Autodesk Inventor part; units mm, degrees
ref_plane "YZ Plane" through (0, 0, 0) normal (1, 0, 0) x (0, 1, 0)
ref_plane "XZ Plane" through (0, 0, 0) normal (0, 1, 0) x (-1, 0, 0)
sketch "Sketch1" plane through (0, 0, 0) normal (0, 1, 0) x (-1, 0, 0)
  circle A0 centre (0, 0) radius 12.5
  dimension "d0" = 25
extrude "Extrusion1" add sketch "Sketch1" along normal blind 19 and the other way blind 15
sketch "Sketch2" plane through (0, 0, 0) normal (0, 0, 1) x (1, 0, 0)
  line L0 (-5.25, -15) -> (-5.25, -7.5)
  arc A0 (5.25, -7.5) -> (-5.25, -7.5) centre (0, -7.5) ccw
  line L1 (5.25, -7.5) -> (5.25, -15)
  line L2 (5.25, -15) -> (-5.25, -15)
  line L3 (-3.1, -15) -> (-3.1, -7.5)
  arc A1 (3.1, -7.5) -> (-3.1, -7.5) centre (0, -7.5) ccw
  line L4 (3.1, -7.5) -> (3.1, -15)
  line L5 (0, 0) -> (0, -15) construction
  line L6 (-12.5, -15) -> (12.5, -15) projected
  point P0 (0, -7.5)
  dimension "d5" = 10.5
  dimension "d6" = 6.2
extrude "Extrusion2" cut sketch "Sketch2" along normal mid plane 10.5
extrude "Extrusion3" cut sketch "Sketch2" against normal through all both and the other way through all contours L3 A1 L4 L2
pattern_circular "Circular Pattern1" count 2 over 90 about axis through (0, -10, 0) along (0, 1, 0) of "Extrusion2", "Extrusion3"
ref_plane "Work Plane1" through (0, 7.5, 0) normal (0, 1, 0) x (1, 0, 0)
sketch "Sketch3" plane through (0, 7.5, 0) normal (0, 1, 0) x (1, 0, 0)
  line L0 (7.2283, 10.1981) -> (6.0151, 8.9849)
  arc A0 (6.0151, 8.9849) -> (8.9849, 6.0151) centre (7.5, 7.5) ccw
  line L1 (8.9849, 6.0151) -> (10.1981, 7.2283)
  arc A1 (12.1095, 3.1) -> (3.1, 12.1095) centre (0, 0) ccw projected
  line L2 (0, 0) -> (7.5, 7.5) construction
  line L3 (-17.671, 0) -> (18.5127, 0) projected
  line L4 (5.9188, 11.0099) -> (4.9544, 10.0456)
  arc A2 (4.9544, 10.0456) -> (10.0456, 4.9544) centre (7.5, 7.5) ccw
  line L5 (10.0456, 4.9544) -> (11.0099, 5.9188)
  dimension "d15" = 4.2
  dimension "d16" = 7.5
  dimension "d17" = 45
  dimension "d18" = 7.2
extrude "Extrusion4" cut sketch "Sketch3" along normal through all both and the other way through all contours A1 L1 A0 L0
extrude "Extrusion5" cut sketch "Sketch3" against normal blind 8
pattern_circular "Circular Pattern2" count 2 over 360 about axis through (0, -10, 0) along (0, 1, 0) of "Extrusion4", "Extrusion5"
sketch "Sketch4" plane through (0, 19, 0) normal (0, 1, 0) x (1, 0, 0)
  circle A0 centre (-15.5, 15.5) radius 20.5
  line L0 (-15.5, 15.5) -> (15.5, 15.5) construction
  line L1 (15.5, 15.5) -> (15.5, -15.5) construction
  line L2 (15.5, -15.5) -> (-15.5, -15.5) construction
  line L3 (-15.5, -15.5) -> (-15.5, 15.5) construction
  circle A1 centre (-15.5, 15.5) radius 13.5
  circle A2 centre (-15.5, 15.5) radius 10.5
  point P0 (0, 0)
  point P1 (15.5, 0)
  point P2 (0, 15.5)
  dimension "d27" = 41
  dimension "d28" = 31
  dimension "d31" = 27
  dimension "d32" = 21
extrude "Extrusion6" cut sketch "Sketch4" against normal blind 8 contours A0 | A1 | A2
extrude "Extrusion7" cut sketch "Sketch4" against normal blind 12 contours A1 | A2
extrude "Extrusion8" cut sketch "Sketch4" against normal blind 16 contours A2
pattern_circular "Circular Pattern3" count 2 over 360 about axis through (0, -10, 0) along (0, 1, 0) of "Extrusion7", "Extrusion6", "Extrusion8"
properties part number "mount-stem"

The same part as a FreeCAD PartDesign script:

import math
import FreeCAD as App
import Part
import Sketcher
Q = App.Units.Quantity

doc = App.newDocument("Part")
body = doc.addObject("PartDesign::Body", "Body")

# Sketch on XZ plane
sketch1 = doc.addObject("Sketcher::SketchObject", "Sketch")
body.addObject(sketch1)
sketch1.AttachmentSupport = (doc.XZ_Plane, [""])
sketch1.MapMode = "FlatFace"
sketch1.addGeometry(Part.Circle(App.Vector(0, 0, 0), App.Vector(0, 0, 1), 12), False)
sketch1.addConstraint(Sketcher.Constraint("Coincident", 0, 3, -1, 1))
sketch1.addConstraint(Sketcher.Constraint("Diameter", 0, 25.0))
pad1 = doc.addObject("PartDesign::Pad", "Pad")
body.addObject(pad1)
pad1.Profile = sketch1
pad1.Type = "TwoLengths"
pad1.Length = 19
pad1.Length2 = 15
pad1.Reversed = True

# Sketch on XY plane
sketch2 = doc.addObject("Sketcher::SketchObject", "Sketch001")
body.addObject(sketch2)
sketch2.AttachmentSupport = (doc.XY_Plane, [""])
sketch2.MapMode = "FlatFace"
sketch2.addGeometry(Part.LineSegment(App.Vector(-5, -8, 0), App.Vector(-5, -15, 0)), False)
sketch2.addGeometry(Part.LineSegment(App.Vector(-5, -15, 0), App.Vector(5, -15, 0)), False)
sketch2.addGeometry(Part.LineSegment(App.Vector(5, -15, 0), App.Vector(5, -8, 0)), False)
sketch2.addGeometry(Part.ArcOfCircle(Part.Circle(App.Vector(0, -8, 0), App.Vector(0, 0, 1), 5), math.radians(0), math.radians(180)), False)
sketch2.addConstraint(Sketcher.Constraint("Coincident", 0, 2, 1, 1))
sketch2.addConstraint(Sketcher.Constraint("Coincident", 1, 2, 2, 1))
sketch2.addConstraint(Sketcher.Constraint("Tangent", 2, 2, 3, 1))
sketch2.addConstraint(Sketcher.Constraint("Tangent", 3, 2, 0, 1))
sketch2.addConstraint(Sketcher.Constraint("Vertical", 0))
sketch2.addConstraint(Sketcher.Constraint("Horizontal", 1))
sketch2.addConstraint(Sketcher.Constraint("Vertical", 2))
sketch2.addConstraint(Sketcher.Constraint("PointOnObject", 3, 3, -2))
sketch2.addConstraint(Sketcher.Constraint("Radius", 3, 5.25))
sketch2.addConstraint(Sketcher.Constraint("DistanceY", 0, 2, 0, 1, 7.5))
sketch2.addConstraint(Sketcher.Constraint("DistanceY", 0, 2, -1, 1, 15.0))
pocket1 = doc.addObject("PartDesign::Pocket", "Pocket")
body.addObject(pocket1)
pocket1.Profile = sketch2
pocket1.Length = 10.5
pocket1.Midplane = True

# Sketch on XY plane
sketch3 = doc.addObject("Sketcher::SketchObject", "Sketch002")
body.addObject(sketch3)
sketch3.AttachmentSupport = (doc.XY_Plane, [""])
sketch3.MapMode = "FlatFace"
sketch3.addGeometry(Part.LineSegment(App.Vector(-3.1, -7.5, 0), App.Vector(-3.1, -15, 0)), False)
sketch3.addGeometry(Part.LineSegment(App.Vector(-3.1, -15, 0), App.Vector(3.1, -15, 0)), False)
sketch3.addGeometry(Part.LineSegment(App.Vector(3.1, -15, 0), App.Vector(3.1, -7.5, 0)), False)
sketch3.addGeometry(Part.ArcOfCircle(Part.Circle(App.Vector(0, -7.5, 0), App.Vector(0, 0, 1), 3.1), math.radians(0), math.radians(180)), False)
sketch3.addConstraint(Sketcher.Constraint("Coincident", 0, 2, 1, 1))
sketch3.addConstraint(Sketcher.Constraint("Coincident", 1, 2, 2, 1))
sketch3.addConstraint(Sketcher.Constraint("Tangent", 2, 2, 3, 1))
sketch3.addConstraint(Sketcher.Constraint("Tangent", 3, 2, 0, 1))
sketch3.addConstraint(Sketcher.Constraint("Vertical", 0))
sketch3.addConstraint(Sketcher.Constraint("Horizontal", 1))
sketch3.addConstraint(Sketcher.Constraint("Vertical", 2))
sketch3.addConstraint(Sketcher.Constraint("PointOnObject", 3, 3, -2))
sketch3.addConstraint(Sketcher.Constraint("Radius", 3, 3.1))
sketch3.addConstraint(Sketcher.Constraint("DistanceY", 0, 2, 0, 1, 7.5))
sketch3.addConstraint(Sketcher.Constraint("DistanceY", 0, 2, -1, 1, 15.0))
pocket2 = doc.addObject("PartDesign::Pocket", "Pocket001")
body.addObject(pocket2)
pocket2.Profile = sketch3
pocket2.Type = "ThroughAll"
pocket2.Midplane = True
doc.recompute()

polarpattern = doc.addObject("PartDesign::PolarPattern", "PolarPattern")
body.addObject(polarpattern)
polarpattern.Originals = [pocket1, pocket2]
polarpattern.Axis = (doc.Y_Axis, [""])
polarpattern.Angle = 90
polarpattern.Occurrences = 2
body.Tip = polarpattern

# Sketch on XZ plane
sketch4 = doc.addObject("Sketcher::SketchObject", "Sketch003")
body.addObject(sketch4)
sketch4.AttachmentSupport = (doc.XZ_Plane, [""])
sketch4.MapMode = "FlatFace"
sketch4.AttachmentOffset = App.Placement(App.Vector(0, 0, -7.5), App.Rotation())
sketch4.addGeometry(Part.ArcOfCircle(Part.Circle(App.Vector(0, 0, 0), App.Vector(0, 0, 1), 12.5), math.radians(-54.67), math.radians(-35.33)), False)
sketch4.addGeometry(Part.LineSegment(App.Vector(7.2, -10.2, 0), App.Vector(6, -9, 0)), False)
sketch4.addGeometry(Part.ArcOfCircle(Part.Circle(App.Vector(7.5, -7.5, 0), App.Vector(0, 0, 1), 2.1), math.radians(45), math.radians(225)), False)
sketch4.addGeometry(Part.LineSegment(App.Vector(9, -6, 0), App.Vector(10.2, -7.2, 0)), False)
sketch4.addConstraint(Sketcher.Constraint("Coincident", 0, 1, 1, 1))
sketch4.addConstraint(Sketcher.Constraint("Tangent", 1, 2, 2, 2))
sketch4.addConstraint(Sketcher.Constraint("Tangent", 2, 1, 3, 1))
sketch4.addConstraint(Sketcher.Constraint("Coincident", 3, 2, 0, 2))
sketch4.addConstraint(Sketcher.Constraint("Coincident", 0, 3, -1, 1))
sketch4.addConstraint(Sketcher.Constraint("Parallel", 1, 3))
sketch4.addConstraint(Sketcher.Constraint("Equal", 1, 3))
sketch4.addConstraint(Sketcher.Constraint("Radius", 2, 2.1))
sketch4.addConstraint(Sketcher.Constraint("Angle", 3, Q("-45 deg")))
sketch4.addConstraint(Sketcher.Constraint("DistanceX", -1, 1, 2, 3, 7.5))
sketch4.addConstraint(Sketcher.Constraint("Radius", 0, 12.5))
pocket3 = doc.addObject("PartDesign::Pocket", "Pocket002")
body.addObject(pocket3)
pocket3.Profile = sketch4
pocket3.Type = "ThroughAll"
pocket3.Midplane = True

# Sketch on XZ plane
sketch5 = doc.addObject("Sketcher::SketchObject", "Sketch004")
body.addObject(sketch5)
sketch5.AttachmentSupport = (doc.XZ_Plane, [""])
sketch5.MapMode = "FlatFace"
sketch5.AttachmentOffset = App.Placement(App.Vector(0, 0, -7.5), App.Rotation())
sketch5.addGeometry(Part.LineSegment(App.Vector(5.9, -11, 0), App.Vector(5, -10, 0)), False)
sketch5.addGeometry(Part.ArcOfCircle(Part.Circle(App.Vector(7.5, -7.5, 0), App.Vector(0, 0, 1), 3.6), math.radians(45), math.radians(225)), False)
sketch5.addGeometry(Part.LineSegment(App.Vector(10, -5, 0), App.Vector(11, -5.9, 0)), False)
sketch5.addGeometry(Part.ArcOfCircle(Part.Circle(App.Vector(0, 0, 0), App.Vector(0, 0, 1), 12.5), math.radians(-62), math.radians(-28)), False)
sketch5.addConstraint(Sketcher.Constraint("Tangent", 0, 2, 1, 2))
sketch5.addConstraint(Sketcher.Constraint("Tangent", 1, 1, 2, 1))
sketch5.addConstraint(Sketcher.Constraint("Coincident", 2, 2, 3, 2))
sketch5.addConstraint(Sketcher.Constraint("Coincident", 3, 1, 0, 1))
sketch5.addConstraint(Sketcher.Constraint("Coincident", 3, 3, -1, 1))
sketch5.addConstraint(Sketcher.Constraint("Parallel", 0, 2))
sketch5.addConstraint(Sketcher.Constraint("Equal", 0, 2))
sketch5.addConstraint(Sketcher.Constraint("Radius", 1, 3.6))
sketch5.addConstraint(Sketcher.Constraint("DistanceX", -1, 1, 1, 3, 7.5))
sketch5.addConstraint(Sketcher.Constraint("DistanceY", 1, 3, -1, 1, 7.5))
sketch5.addConstraint(Sketcher.Constraint("Radius", 3, 12.5))
pocket4 = doc.addObject("PartDesign::Pocket", "Pocket003")
body.addObject(pocket4)
pocket4.Profile = sketch5
pocket4.Length = 8
pocket4.Reversed = True
doc.recompute()

polarpattern2 = doc.addObject("PartDesign::PolarPattern", "PolarPattern001")
body.addObject(polarpattern2)
polarpattern2.Originals = [pocket3, pocket4]
polarpattern2.Axis = (doc.Y_Axis, [""])
polarpattern2.Angle = 360
polarpattern2.Occurrences = 2
body.Tip = polarpattern2

# Sketch on XZ plane
sketch6 = doc.addObject("Sketcher::SketchObject", "Sketch005")
body.addObject(sketch6)
sketch6.AttachmentSupport = (doc.XZ_Plane, [""])
sketch6.MapMode = "FlatFace"
sketch6.AttachmentOffset = App.Placement(App.Vector(0, 0, -19), App.Rotation())
sketch6.addGeometry(Part.Circle(App.Vector(-16, -16, 0), App.Vector(0, 0, 1), 20), False)
sketch6.addConstraint(Sketcher.Constraint("Diameter", 0, 41.0))
sketch6.addConstraint(Sketcher.Constraint("DistanceX", 0, 3, -1, 1, 15.5))
sketch6.addConstraint(Sketcher.Constraint("DistanceY", 0, 3, -1, 1, 15.5))
pocket5 = doc.addObject("PartDesign::Pocket", "Pocket004")
body.addObject(pocket5)
pocket5.Profile = sketch6
pocket5.Length = 8
pocket5.Reversed = True

# Sketch on XZ plane
sketch7 = doc.addObject("Sketcher::SketchObject", "Sketch006")
body.addObject(sketch7)
sketch7.AttachmentSupport = (doc.XZ_Plane, [""])
sketch7.MapMode = "FlatFace"
sketch7.AttachmentOffset = App.Placement(App.Vector(0, 0, -19), App.Rotation())
sketch7.addGeometry(Part.Circle(App.Vector(-16, -16, 0), App.Vector(0, 0, 1), 14), False)
sketch7.addConstraint(Sketcher.Constraint("Diameter", 0, 27.0))
sketch7.addConstraint(Sketcher.Constraint("DistanceX", 0, 3, -1, 1, 15.5))
sketch7.addConstraint(Sketcher.Constraint("DistanceY", 0, 3, -1, 1, 15.5))
pocket6 = doc.addObject("PartDesign::Pocket", "Pocket005")
body.addObject(pocket6)
pocket6.Profile = sketch7
pocket6.Length = 12
pocket6.Reversed = True

# Sketch on XZ plane
sketch8 = doc.addObject("Sketcher::SketchObject", "Sketch007")
body.addObject(sketch8)
sketch8.AttachmentSupport = (doc.XZ_Plane, [""])
sketch8.MapMode = "FlatFace"
sketch8.AttachmentOffset = App.Placement(App.Vector(0, 0, -19), App.Rotation())
sketch8.addGeometry(Part.Circle(App.Vector(-16, -16, 0), App.Vector(0, 0, 1), 10), False)
sketch8.addConstraint(Sketcher.Constraint("Diameter", 0, 21.0))
sketch8.addConstraint(Sketcher.Constraint("DistanceX", 0, 3, -1, 1, 15.5))
sketch8.addConstraint(Sketcher.Constraint("DistanceY", 0, 3, -1, 1, 15.5))
pocket7 = doc.addObject("PartDesign::Pocket", "Pocket006")
body.addObject(pocket7)
pocket7.Profile = sketch8
pocket7.Length = 16
pocket7.Reversed = True
doc.recompute()

polarpattern3 = doc.addObject("PartDesign::PolarPattern", "PolarPattern002")
body.addObject(polarpattern3)
polarpattern3.Originals = [pocket6, pocket5, pocket7]
polarpattern3.Axis = (doc.Y_Axis, [""])
polarpattern3.Angle = 360
polarpattern3.Occurrences = 2
body.Tip = polarpattern3

doc.recompute()
